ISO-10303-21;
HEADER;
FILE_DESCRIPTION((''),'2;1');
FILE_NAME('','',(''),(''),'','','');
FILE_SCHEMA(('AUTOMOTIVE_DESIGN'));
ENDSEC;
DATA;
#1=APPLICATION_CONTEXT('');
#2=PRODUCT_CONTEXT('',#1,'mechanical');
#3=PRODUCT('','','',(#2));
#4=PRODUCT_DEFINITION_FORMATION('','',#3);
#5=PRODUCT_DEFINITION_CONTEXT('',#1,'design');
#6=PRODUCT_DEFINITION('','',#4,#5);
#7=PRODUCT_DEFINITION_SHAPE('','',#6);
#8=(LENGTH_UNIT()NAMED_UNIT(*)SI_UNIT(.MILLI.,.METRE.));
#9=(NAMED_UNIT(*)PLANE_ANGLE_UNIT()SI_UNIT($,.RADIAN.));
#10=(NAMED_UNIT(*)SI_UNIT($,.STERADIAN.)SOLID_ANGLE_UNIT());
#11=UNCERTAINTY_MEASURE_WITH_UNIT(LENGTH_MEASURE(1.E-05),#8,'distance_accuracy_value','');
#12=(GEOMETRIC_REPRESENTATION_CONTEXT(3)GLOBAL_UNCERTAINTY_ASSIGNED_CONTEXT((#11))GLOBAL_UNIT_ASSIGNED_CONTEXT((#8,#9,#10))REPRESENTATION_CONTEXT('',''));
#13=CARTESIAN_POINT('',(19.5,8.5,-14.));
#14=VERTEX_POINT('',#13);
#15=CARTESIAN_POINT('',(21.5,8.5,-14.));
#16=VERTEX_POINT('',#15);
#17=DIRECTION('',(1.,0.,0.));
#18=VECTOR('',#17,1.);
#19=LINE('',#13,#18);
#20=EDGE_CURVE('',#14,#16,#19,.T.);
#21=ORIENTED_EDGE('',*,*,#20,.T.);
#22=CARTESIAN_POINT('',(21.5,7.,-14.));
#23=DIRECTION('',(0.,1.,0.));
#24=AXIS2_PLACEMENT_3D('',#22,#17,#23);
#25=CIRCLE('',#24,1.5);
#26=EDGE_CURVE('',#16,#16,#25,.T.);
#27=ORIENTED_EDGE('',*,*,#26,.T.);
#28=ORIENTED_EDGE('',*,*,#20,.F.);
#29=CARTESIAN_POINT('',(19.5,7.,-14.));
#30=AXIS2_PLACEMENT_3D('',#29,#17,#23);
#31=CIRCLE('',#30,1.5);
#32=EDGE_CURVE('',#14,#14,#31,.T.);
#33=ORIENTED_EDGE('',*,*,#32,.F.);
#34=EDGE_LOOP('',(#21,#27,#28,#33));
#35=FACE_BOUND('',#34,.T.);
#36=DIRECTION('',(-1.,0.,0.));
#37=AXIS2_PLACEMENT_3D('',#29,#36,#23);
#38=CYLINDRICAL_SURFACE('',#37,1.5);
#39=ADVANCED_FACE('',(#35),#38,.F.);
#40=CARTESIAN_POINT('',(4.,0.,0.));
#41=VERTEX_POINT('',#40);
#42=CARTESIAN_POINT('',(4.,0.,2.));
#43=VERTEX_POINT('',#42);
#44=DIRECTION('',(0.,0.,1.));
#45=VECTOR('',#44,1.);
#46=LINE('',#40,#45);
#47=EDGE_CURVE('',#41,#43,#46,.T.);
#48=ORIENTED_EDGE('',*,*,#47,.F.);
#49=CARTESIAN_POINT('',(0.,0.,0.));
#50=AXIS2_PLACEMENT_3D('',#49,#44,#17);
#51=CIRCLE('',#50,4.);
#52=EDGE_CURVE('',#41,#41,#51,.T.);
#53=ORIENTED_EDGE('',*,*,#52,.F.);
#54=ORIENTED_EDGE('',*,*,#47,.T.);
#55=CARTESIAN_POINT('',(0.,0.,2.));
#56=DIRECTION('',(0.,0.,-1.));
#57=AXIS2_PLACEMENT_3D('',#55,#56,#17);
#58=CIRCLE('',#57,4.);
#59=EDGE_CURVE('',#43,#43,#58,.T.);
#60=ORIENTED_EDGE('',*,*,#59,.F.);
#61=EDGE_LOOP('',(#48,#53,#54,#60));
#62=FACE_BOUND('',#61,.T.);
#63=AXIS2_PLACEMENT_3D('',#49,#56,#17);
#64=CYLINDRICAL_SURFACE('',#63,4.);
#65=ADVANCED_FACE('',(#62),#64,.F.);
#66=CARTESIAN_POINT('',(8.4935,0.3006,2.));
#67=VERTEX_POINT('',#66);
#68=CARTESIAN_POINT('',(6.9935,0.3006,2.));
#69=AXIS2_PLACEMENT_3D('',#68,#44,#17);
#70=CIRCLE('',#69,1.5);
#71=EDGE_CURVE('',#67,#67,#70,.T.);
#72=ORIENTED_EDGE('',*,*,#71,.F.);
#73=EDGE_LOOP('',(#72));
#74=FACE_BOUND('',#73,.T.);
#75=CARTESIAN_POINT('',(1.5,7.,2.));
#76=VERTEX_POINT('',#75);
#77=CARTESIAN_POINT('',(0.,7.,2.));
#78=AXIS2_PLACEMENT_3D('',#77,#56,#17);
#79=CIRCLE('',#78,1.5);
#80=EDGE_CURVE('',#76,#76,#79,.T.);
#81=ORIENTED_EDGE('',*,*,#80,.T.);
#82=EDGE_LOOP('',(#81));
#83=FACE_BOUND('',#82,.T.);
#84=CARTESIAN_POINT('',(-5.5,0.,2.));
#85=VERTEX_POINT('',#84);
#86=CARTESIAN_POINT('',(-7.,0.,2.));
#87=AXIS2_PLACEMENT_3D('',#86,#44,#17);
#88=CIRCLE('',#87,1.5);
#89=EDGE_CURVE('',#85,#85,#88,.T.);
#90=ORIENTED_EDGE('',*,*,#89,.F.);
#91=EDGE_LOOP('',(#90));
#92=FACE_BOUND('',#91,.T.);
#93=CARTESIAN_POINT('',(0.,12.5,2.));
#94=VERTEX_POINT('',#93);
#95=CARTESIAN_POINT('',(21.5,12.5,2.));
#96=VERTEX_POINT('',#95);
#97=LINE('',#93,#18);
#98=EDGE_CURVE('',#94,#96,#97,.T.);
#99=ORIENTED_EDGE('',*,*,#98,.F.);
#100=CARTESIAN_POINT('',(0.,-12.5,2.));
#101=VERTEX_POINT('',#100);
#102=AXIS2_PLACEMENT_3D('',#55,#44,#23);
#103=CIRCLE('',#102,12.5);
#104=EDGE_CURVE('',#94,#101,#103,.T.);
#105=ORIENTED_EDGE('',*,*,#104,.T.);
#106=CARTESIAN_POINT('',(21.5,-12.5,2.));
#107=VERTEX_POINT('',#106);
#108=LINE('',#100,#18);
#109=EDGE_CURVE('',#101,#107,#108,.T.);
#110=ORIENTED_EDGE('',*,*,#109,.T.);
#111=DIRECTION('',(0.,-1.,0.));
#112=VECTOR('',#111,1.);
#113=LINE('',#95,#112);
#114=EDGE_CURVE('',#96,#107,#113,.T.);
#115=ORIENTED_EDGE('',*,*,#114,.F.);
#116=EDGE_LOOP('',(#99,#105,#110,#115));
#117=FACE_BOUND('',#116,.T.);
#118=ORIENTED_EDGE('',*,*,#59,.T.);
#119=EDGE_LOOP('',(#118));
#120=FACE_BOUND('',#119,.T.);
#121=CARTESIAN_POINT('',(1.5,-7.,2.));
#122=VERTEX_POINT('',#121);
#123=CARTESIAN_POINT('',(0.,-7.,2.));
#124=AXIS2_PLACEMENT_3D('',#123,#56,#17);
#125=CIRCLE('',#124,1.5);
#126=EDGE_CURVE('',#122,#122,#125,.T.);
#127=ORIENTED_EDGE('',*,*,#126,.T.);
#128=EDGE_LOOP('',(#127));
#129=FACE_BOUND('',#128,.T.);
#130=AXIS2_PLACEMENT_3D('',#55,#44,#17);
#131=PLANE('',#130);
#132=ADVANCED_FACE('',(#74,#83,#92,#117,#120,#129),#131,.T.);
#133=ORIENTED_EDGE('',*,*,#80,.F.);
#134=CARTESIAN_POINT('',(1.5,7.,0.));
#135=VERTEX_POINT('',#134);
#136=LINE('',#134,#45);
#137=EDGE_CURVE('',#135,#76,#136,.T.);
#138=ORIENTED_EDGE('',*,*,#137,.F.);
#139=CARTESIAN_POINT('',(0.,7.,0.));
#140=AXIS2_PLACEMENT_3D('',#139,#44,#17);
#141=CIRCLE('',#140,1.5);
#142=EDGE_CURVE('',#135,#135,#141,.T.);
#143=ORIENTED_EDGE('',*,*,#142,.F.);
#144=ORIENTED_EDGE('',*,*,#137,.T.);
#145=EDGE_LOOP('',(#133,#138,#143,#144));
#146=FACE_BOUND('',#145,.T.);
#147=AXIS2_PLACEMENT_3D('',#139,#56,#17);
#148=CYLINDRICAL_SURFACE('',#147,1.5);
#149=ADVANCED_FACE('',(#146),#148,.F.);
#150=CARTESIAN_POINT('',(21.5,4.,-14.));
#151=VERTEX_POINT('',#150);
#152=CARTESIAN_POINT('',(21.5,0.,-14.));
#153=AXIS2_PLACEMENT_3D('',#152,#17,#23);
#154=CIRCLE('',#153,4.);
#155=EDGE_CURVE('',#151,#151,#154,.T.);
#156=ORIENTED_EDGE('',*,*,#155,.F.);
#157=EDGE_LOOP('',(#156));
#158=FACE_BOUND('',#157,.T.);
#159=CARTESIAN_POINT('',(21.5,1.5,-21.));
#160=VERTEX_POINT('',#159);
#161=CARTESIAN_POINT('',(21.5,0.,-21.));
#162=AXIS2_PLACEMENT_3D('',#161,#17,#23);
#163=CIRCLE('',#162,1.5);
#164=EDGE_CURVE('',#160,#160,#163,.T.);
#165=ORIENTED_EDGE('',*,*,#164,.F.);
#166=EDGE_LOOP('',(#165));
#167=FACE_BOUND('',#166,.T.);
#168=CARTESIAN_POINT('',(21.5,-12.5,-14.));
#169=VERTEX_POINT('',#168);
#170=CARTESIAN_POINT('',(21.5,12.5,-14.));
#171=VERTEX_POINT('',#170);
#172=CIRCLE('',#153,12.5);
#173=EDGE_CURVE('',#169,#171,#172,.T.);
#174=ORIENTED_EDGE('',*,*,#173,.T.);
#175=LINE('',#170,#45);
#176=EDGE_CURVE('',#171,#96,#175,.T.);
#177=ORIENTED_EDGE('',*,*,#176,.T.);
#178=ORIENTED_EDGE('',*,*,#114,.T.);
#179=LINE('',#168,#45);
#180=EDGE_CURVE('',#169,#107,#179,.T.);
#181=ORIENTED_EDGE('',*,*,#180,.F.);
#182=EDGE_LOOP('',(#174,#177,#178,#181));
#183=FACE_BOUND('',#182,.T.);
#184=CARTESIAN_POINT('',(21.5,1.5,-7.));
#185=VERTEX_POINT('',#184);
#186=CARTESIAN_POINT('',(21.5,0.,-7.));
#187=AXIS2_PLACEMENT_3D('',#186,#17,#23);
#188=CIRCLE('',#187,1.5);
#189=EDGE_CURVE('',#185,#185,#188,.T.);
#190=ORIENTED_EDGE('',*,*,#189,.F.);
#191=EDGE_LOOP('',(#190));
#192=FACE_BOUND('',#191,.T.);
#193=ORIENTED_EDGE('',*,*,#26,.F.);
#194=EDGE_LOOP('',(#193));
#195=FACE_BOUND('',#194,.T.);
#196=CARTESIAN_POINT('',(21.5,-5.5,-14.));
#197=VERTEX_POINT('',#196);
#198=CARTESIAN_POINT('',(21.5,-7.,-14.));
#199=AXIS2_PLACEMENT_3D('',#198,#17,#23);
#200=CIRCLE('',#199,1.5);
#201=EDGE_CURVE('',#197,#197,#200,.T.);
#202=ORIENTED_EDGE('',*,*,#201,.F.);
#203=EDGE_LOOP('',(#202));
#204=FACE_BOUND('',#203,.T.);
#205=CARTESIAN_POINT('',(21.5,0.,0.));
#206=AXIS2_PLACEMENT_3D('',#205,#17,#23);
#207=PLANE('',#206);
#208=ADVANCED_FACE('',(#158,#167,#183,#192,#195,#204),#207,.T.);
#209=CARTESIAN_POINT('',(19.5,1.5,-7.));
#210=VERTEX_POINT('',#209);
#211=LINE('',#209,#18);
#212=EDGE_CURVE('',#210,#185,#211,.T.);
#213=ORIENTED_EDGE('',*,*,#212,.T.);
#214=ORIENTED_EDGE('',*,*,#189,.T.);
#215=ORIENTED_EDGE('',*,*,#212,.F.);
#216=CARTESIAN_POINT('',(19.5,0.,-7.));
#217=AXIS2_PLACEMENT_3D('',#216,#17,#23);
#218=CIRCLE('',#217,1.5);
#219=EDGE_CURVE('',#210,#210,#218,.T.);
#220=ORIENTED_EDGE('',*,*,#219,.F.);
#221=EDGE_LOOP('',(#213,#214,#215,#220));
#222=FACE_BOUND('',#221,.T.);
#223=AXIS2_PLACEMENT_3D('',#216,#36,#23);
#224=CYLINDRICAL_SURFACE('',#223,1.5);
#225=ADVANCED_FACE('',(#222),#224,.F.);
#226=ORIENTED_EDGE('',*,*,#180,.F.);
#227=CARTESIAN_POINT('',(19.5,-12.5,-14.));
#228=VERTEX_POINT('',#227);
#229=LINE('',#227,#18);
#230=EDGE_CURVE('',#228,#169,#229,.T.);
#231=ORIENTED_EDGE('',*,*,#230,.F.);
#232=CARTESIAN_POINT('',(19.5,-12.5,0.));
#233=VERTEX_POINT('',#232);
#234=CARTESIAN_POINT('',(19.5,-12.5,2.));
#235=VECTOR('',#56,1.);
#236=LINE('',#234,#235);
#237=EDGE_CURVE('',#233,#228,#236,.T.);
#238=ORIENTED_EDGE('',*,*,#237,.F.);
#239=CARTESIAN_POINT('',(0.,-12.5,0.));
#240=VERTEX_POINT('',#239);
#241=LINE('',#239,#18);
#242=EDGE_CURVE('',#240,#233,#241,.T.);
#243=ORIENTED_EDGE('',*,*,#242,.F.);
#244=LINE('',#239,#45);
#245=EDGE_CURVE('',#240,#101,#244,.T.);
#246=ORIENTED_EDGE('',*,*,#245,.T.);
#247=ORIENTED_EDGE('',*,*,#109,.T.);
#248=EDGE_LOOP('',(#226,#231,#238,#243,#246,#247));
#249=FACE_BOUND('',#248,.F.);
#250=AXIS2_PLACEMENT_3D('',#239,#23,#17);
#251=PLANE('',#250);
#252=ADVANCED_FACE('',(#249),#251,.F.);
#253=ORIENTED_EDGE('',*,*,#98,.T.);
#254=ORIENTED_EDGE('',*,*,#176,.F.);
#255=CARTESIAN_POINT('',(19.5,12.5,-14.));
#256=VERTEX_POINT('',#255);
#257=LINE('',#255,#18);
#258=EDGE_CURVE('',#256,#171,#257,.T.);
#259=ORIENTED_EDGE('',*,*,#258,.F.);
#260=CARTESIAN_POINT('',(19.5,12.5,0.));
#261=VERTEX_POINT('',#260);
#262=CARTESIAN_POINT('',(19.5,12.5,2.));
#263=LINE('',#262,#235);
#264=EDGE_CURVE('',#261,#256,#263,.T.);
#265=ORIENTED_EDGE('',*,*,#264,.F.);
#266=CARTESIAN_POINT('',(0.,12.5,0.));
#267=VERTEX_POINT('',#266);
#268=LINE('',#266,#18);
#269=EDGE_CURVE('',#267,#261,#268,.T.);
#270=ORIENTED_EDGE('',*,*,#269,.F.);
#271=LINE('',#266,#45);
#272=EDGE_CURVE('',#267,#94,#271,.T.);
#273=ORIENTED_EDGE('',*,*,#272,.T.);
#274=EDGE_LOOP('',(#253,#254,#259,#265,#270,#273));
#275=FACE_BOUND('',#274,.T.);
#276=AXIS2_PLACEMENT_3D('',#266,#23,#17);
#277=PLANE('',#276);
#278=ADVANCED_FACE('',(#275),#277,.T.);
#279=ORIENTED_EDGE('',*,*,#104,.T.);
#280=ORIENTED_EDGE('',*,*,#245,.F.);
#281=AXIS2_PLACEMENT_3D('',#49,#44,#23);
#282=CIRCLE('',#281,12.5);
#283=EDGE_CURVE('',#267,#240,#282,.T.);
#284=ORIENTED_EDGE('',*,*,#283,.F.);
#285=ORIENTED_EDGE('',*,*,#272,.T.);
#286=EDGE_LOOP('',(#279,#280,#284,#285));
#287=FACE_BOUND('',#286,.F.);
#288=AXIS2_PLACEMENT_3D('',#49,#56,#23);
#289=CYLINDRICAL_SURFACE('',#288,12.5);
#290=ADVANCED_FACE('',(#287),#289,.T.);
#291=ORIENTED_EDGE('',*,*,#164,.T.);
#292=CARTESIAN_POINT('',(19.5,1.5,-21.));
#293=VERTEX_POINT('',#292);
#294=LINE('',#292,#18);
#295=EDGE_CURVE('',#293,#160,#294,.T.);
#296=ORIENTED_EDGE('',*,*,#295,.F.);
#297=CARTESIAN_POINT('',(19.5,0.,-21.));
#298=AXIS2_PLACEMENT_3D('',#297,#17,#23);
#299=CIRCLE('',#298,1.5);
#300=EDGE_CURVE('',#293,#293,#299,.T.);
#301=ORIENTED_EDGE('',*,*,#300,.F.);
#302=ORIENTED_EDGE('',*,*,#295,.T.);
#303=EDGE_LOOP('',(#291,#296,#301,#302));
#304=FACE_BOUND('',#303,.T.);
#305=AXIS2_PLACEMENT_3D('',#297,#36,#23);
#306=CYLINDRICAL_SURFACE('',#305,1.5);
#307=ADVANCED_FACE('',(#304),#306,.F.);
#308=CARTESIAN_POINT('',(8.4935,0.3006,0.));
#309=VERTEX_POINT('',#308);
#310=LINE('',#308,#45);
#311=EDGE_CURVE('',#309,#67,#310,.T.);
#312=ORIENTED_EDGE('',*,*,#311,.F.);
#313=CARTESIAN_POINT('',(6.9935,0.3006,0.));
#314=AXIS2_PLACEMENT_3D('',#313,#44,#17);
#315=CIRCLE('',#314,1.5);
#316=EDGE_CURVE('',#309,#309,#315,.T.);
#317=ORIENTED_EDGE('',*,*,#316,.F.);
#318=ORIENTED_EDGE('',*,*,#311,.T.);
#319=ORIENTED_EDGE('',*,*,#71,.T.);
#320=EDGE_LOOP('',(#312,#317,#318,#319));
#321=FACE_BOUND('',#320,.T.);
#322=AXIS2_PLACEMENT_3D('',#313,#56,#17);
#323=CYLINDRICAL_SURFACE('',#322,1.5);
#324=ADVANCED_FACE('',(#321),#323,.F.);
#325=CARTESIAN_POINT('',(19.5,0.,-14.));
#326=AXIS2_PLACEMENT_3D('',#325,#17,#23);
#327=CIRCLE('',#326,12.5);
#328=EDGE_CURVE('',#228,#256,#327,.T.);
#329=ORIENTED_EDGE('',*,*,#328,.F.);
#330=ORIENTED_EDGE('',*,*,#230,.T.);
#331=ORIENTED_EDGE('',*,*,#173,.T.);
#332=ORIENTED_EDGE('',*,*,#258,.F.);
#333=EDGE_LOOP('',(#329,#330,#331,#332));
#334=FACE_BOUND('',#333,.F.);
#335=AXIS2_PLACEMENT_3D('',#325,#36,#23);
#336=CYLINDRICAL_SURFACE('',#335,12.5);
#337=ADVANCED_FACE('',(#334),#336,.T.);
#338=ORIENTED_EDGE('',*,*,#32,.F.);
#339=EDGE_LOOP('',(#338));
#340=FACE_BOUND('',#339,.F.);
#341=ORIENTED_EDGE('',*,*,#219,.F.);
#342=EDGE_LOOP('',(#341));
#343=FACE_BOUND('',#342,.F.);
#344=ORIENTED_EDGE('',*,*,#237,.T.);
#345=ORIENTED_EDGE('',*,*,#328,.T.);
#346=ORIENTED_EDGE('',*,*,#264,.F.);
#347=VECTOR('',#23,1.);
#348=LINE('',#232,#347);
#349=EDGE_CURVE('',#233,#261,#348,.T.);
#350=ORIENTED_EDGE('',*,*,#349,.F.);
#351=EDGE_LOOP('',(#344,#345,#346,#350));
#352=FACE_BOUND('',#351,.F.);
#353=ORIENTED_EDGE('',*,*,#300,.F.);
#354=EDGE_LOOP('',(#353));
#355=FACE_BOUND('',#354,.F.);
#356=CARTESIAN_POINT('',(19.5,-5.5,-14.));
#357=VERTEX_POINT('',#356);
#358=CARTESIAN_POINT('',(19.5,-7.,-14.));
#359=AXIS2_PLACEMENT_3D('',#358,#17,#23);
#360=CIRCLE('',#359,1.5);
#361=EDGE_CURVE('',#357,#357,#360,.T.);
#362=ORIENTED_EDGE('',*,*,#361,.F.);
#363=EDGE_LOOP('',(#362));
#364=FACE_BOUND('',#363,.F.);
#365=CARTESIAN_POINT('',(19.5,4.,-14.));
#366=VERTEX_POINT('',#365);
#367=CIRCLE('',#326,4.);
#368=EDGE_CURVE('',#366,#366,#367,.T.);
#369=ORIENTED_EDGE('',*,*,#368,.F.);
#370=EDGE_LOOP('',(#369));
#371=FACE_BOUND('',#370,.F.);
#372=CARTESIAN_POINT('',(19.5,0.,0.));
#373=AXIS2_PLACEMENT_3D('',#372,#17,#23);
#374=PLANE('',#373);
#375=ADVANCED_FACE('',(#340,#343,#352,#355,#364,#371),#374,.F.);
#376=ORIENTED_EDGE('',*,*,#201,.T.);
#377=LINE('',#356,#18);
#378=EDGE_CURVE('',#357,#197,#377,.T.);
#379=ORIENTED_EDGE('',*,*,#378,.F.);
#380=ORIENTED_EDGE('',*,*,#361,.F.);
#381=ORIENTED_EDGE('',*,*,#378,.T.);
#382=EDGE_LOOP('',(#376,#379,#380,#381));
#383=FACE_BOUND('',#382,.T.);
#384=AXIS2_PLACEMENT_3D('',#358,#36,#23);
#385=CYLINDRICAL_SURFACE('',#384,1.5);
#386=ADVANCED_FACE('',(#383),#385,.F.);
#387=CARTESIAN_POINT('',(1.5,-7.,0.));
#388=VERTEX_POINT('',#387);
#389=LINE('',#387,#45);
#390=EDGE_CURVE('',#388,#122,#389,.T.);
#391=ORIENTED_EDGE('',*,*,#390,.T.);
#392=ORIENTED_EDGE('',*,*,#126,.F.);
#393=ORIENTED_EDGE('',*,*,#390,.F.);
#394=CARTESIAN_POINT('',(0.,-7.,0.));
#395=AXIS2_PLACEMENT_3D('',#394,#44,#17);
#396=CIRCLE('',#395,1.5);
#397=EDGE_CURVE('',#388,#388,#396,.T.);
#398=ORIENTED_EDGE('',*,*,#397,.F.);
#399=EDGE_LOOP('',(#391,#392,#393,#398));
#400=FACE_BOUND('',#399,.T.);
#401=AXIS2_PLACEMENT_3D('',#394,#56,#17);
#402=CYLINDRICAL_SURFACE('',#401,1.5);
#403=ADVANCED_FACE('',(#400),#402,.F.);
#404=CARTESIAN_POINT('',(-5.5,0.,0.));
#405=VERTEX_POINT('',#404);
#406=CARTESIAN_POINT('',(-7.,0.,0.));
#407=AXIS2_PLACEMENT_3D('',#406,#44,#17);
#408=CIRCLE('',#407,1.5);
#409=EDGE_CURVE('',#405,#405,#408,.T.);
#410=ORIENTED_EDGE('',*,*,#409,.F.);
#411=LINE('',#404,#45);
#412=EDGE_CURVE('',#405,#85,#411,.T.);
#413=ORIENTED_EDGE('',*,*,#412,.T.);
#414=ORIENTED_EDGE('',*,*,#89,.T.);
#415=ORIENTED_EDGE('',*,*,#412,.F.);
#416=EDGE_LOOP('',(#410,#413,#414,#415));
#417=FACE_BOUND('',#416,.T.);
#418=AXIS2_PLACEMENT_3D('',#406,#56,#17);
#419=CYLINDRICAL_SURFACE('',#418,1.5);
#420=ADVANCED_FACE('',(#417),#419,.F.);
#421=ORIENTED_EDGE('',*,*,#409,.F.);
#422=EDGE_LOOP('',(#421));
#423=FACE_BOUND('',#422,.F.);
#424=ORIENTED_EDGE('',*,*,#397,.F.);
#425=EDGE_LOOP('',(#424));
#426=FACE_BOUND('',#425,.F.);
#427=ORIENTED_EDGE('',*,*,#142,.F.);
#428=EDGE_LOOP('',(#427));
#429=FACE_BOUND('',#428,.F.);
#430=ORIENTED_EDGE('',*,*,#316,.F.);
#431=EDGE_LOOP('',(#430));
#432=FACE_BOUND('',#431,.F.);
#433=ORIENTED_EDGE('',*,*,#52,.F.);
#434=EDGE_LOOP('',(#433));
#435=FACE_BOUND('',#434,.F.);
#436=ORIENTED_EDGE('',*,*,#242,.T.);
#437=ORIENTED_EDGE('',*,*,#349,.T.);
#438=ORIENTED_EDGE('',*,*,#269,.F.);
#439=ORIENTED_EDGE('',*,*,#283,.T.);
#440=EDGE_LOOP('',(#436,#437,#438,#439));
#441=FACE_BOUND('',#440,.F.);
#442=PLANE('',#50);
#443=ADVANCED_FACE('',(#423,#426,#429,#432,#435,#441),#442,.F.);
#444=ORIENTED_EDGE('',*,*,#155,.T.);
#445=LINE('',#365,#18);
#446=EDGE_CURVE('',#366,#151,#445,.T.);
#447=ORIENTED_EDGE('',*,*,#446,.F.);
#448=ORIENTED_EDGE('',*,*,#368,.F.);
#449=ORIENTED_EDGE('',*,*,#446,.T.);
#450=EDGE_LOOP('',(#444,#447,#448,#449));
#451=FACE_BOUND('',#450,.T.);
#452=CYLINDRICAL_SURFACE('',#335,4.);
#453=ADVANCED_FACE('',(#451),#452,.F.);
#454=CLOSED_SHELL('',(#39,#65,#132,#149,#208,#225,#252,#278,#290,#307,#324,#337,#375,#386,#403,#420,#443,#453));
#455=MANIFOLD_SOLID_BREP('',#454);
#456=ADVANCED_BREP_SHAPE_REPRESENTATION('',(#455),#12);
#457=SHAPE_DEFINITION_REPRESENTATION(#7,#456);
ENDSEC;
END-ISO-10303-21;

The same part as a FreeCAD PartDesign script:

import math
import FreeCAD as App
import Part
import Sketcher
from FreeCAD import Vector
Q = App.Units.Quantity

doc = App.newDocument("Part")
body = doc.addObject("PartDesign::Body", "Body")

sketch1 = body.newObject("Sketcher::SketchObject", "Sketch")
sketch1.AttachmentSupport = (doc.getObject("XY_Plane"), [""])
sketch1.MapMode = "FlatFace"
sketch1.addGeometry([
    Part.LineSegment(Vector(19.5, 12.5, 0), Vector(0, 12.5, 0)),
    Part.ArcOfCircle(Part.Circle(Vector(0, 0, 0), Vector(0, 0, 1), 12.5), math.radians(90), math.radians(270)),
    Part.LineSegment(Vector(0, -12.5, 0), Vector(19.5, -12.5, 0)),
    Part.LineSegment(Vector(19.5, -12.5, 0), Vector(19.5, 12.5, 0)),
    Part.Circle(Vector(0, -7, 0), Vector(0, 0, 1), 1.5),
    Part.Circle(Vector(0, 0, 0), Vector(0, 0, 1), 4),
    Part.Circle(Vector(0, 7, 0), Vector(0, 0, 1), 1.5),
    Part.Circle(Vector(7, 0.3, 0), Vector(0, 0, 1), 1.5),
    Part.Circle(Vector(-7, 0, 0), Vector(0, 0, 1), 1.5),
], False)
sketch1.addConstraint([
    Sketcher.Constraint("Tangent", 0, 2, 1, 1),
    Sketcher.Constraint("Tangent", 1, 2, 2, 1),
    Sketcher.Constraint("Coincident", 2, 2, 3, 1),
    Sketcher.Constraint("Coincident", 3, 2, 0, 1),
    Sketcher.Constraint("Horizontal", 0),
    Sketcher.Constraint("Horizontal", 2),
    Sketcher.Constraint("Vertical", 3),
    Sketcher.Constraint("Coincident", 1, 3, -1, 1),
    Sketcher.Constraint("Coincident", 5, 3, -1, 1),
    Sketcher.Constraint("Equal", 4, 6),
    Sketcher.Constraint("Equal", 6, 7),
    Sketcher.Constraint("Equal", 7, 8),
    Sketcher.Constraint("Symmetric", 4, 3, 6, 3, -1, 1),
    Sketcher.Constraint("PointOnObject", 4, 3, -2),
    Sketcher.Constraint("PointOnObject", 8, 3, -1),
    Sketcher.Constraint("Diameter", 4, Q("3 mm")),
    Sketcher.Constraint("Diameter", 5, Q("8 mm")),
    Sketcher.Constraint("Radius", 1, Q("12.5 mm")),
    Sketcher.Constraint("DistanceX", 0, 2, 0, 1, Q("19.5 mm")),
    Sketcher.Constraint("DistanceY", 4, 3, 6, 3, Q("14 mm")),
    Sketcher.Constraint("DistanceX", 8, 3, -1, 1, Q("7 mm")),
    Sketcher.Constraint("DistanceX", -1, 1, 7, 3, Q("6.9935 mm")),
    Sketcher.Constraint("DistanceY", -1, 1, 7, 3, Q("0.3006 mm")),
])
pad1 = body.newObject("PartDesign::Pad", "Pad")
pad1.Profile = sketch1
pad1.Length = 2

sketch2 = body.newObject("Sketcher::SketchObject", "Sketch001")
sketch2.AttachmentSupport = (doc.getObject("YZ_Plane"), [""])
sketch2.MapMode = "FlatFace"
sketch2.AttachmentOffset = App.Placement(Vector(0, 0, 19.5), App.Rotation())
sketch2.addGeometry([
    Part.LineSegment(Vector(-12.5, 2, 0), Vector(-12.5, -14, 0)),
    Part.ArcOfCircle(Part.Circle(Vector(0, -14, 0), Vector(0, 0, 1), 12.5), math.radians(180), math.radians(360)),
    Part.LineSegment(Vector(12.5, -14, 0), Vector(12.5, 2, 0)),
    Part.LineSegment(Vector(12.5, 2, 0), Vector(-12.5, 2, 0)),
    Part.Circle(Vector(0, -7, 0), Vector(0, 0, 1), 1.5),
    Part.Circle(Vector(-7, -14, 0), Vector(0, 0, 1), 1.5),
    Part.Circle(Vector(0, -21, 0), Vector(0, 0, 1), 1.5),
    Part.Circle(Vector(0, -14, 0), Vector(0, 0, 1), 4),
    Part.Circle(Vector(7, -14, 0), Vector(0, 0, 1), 1.5),
], False)
sketch2.addConstraint([
    Sketcher.Constraint("Tangent", 0, 2, 1, 1),
    Sketcher.Constraint("Tangent", 1, 2, 2, 1),
    Sketcher.Constraint("Coincident", 2, 2, 3, 1),
    Sketcher.Constraint("Coincident", 3, 2, 0, 1),
    Sketcher.Constraint("Vertical", 0),
    Sketcher.Constraint("Vertical", 2),
    Sketcher.Constraint("Horizontal", 3),
    Sketcher.Constraint("Coincident", 7, 3, 1, 3),
    Sketcher.Constraint("Equal", 4, 5),
    Sketcher.Constraint("Equal", 5, 6),
    Sketcher.Constraint("Equal", 6, 8),
    Sketcher.Constraint("Symmetric", 5, 3, 8, 3, -2),
    Sketcher.Constraint("PointOnObject", 1, 3, -2),
    Sketcher.Constraint("PointOnObject", 4, 3, -2),
    Sketcher.Constraint("PointOnObject", 6, 3, -2),
    Sketcher.Constraint("Horizontal", 1, 3, 5, 3),
    Sketcher.Constraint("Diameter", 4, Q("3 mm")),
    Sketcher.Constraint("Diameter", 7, Q("8 mm")),
    Sketcher.Constraint("DistanceY", 1, 3, -1, 1, Q("14 mm")),
    Sketcher.Constraint("DistanceY", 6, 3, 4, 3, Q("14 mm")),
    Sketcher.Constraint("DistanceX", 5, 3, 8, 3, Q("14 mm")),
    Sketcher.Constraint("Radius", 1, Q("12.5 mm")),
    Sketcher.Constraint("DistanceY", 0, 2, 0, 1, Q("16 mm")),
    Sketcher.Constraint("DistanceY", 4, 3, -1, 1, Q("7 mm")),
])
pad2 = body.newObject("PartDesign::Pad", "Pad001")
pad2.Profile = sketch2
pad2.Length = 2

doc.recompute()
